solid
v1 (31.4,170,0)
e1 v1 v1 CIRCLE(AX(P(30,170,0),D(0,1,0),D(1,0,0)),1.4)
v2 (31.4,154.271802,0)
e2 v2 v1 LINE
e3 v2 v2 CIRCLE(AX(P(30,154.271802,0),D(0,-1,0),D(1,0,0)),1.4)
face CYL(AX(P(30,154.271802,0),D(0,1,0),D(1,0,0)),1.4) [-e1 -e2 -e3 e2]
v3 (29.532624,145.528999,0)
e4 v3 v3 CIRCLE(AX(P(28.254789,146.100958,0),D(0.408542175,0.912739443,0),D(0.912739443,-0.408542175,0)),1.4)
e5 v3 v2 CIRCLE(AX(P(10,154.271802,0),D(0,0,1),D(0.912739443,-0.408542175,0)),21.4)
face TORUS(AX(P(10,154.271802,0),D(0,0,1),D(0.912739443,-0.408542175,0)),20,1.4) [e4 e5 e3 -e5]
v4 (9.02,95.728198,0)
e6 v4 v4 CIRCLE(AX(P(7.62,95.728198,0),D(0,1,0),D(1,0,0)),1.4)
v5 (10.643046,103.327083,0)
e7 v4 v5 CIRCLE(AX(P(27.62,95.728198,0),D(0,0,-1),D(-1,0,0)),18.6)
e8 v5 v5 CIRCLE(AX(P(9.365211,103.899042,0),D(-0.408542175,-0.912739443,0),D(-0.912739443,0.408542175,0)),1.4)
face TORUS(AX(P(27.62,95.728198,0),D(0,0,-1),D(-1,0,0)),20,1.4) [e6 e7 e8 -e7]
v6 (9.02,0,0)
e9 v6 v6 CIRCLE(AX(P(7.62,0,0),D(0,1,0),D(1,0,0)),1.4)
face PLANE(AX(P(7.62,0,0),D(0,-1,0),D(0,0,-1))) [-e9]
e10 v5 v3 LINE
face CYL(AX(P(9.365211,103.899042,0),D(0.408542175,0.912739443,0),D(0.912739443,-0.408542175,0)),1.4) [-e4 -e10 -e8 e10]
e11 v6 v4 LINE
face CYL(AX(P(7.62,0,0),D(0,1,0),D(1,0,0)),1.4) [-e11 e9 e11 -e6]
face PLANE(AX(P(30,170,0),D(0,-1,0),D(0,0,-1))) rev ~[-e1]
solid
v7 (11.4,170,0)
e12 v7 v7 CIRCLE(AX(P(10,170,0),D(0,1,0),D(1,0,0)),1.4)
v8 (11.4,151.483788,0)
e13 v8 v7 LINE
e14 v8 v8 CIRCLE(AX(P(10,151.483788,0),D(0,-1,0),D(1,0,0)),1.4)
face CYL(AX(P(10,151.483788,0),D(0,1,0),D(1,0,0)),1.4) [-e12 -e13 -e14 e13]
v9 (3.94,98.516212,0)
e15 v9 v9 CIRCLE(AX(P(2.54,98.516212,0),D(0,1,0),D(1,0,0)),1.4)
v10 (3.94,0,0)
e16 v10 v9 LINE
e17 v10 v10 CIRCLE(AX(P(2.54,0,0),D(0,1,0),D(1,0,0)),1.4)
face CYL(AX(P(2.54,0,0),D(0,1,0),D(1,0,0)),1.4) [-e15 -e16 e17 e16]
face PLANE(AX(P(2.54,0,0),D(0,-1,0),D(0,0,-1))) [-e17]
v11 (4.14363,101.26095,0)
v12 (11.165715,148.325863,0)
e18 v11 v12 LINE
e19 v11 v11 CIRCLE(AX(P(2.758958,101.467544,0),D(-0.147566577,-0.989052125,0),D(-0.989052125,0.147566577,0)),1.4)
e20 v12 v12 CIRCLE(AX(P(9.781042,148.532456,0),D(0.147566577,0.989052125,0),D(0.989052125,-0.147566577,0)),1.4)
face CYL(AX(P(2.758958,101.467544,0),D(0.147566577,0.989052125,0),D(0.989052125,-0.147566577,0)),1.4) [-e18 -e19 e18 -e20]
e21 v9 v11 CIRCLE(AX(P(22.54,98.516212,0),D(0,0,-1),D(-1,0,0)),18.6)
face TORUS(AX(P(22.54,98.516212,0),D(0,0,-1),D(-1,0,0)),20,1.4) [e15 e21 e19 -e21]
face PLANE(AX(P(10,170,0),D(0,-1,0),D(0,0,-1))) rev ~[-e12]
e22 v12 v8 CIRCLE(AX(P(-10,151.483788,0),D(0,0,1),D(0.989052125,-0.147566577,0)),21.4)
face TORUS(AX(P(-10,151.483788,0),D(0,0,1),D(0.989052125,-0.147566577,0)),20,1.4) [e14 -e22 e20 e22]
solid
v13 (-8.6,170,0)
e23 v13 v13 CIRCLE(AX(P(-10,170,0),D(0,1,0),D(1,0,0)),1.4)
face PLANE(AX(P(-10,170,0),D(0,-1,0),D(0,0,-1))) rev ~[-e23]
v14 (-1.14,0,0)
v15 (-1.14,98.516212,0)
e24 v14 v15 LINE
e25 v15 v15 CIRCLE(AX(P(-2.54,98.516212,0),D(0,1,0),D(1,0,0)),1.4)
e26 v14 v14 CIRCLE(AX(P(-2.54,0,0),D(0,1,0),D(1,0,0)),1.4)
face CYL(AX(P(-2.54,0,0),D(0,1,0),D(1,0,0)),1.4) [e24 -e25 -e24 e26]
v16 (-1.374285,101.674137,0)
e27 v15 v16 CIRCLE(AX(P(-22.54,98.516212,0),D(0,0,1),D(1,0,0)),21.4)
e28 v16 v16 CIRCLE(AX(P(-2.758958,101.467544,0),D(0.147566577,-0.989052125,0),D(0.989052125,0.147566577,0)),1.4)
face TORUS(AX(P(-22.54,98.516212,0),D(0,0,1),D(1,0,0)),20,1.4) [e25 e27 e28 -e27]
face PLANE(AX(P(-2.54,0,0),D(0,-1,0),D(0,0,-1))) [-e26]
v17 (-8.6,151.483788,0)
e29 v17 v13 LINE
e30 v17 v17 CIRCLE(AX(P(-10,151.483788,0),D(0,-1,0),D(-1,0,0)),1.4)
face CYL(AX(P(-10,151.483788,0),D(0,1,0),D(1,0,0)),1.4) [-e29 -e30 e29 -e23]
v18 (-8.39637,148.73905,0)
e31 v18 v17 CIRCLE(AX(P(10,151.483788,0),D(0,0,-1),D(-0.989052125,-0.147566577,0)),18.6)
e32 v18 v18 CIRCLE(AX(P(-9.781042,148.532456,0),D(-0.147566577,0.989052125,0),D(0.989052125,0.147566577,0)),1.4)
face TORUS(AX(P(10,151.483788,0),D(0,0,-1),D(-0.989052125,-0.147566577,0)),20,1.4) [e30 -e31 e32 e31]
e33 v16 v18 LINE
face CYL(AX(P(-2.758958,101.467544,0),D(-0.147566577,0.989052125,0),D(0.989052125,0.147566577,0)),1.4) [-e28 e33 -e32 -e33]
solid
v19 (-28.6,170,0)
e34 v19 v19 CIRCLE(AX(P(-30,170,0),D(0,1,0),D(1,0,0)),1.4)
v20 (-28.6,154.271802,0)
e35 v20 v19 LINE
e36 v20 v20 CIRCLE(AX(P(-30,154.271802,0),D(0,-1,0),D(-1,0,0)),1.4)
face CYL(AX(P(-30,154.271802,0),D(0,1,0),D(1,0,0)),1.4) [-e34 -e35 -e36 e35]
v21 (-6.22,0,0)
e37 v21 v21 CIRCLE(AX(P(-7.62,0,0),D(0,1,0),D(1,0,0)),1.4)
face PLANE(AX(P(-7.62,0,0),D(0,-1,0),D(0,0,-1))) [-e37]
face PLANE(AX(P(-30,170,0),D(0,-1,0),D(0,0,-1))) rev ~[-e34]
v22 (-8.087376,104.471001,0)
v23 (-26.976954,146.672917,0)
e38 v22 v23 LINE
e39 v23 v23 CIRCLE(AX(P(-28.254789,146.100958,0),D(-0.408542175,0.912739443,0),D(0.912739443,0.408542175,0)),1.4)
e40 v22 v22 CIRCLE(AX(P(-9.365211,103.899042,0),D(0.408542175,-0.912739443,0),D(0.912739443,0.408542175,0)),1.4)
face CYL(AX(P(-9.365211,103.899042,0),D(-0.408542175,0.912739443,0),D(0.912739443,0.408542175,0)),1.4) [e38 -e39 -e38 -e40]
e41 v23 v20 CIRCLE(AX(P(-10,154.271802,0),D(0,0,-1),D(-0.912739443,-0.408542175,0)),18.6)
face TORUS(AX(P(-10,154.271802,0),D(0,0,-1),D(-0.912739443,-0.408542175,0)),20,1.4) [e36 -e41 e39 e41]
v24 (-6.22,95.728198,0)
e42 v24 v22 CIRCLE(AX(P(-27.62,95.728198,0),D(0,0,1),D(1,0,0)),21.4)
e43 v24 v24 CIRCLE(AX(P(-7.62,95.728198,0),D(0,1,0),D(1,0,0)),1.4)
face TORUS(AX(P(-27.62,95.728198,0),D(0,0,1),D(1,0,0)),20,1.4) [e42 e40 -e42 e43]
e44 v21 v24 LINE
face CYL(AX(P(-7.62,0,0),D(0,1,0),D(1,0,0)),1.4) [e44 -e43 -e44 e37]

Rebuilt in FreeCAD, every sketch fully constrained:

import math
import FreeCAD as App
import Part
import Sketcher

doc = App.newDocument("Part")
body = doc.addObject("PartDesign::Body", "Body")

# Sketch on XZ plane
sketch1 = body.newObject("Sketcher::SketchObject", "Sketch")
sketch1.AttachmentSupport = (doc.getObject("XZ_Plane"), [""])
sketch1.MapMode = "FlatFace"
sketch1.addGeometry(Part.Circle(App.Vector(-7.6, 0, 0), App.Vector(0, 0, 1), 1.4), False)
sketch1.addConstraint(Sketcher.Constraint("PointOnObject", 0, 3, -1))
sketch1.addConstraint(Sketcher.Constraint("Diameter", 0, 2.8))
sketch1.addConstraint(Sketcher.Constraint("DistanceX", 0, 3, -1, 1, 7.62))

# Sketch on XY plane
sketch2 = body.newObject("Sketcher::SketchObject", "Sketch001")
sketch2.AttachmentSupport = (doc.getObject("XY_Plane"), [""])
sketch2.MapMode = "FlatFace"
sketch2.addGeometry(Part.LineSegment(App.Vector(-8, 0, 0), App.Vector(-8, 96, 0)), False)
sketch2.addGeometry(Part.ArcOfCircle(Part.Circle(App.Vector(-28, 96, 0), App.Vector(0, 0, 1), 20), math.radians(0), math.radians(24)), False)
sketch2.addGeometry(Part.LineSegment(App.Vector(-9, 104, 0), App.Vector(-28, 146, 0)), False)
sketch2.addGeometry(Part.ArcOfCircle(Part.Circle(App.Vector(-10, 154, 0), App.Vector(0, 0, 1), 20), math.radians(180), math.radians(204)), False)
sketch2.addGeometry(Part.LineSegment(App.Vector(-30, 154, 0), App.Vector(-30, 170, 0)), False)
sketch2.addConstraint(Sketcher.Constraint("Tangent", 0, 2, 1, 1))
sketch2.addConstraint(Sketcher.Constraint("Tangent", 1, 2, 2, 1))
sketch2.addConstraint(Sketcher.Constraint("Tangent", 2, 2, 3, 2))
sketch2.addConstraint(Sketcher.Constraint("Tangent", 3, 1, 4, 1))
sketch2.addConstraint(Sketcher.Constraint("Vertical", 0))
sketch2.addConstraint(Sketcher.Constraint("Vertical", 4))
sketch2.addConstraint(Sketcher.Constraint("Equal", 1, 3))
sketch2.addConstraint(Sketcher.Constraint("PointOnObject", 0, 1, -1))
sketch2.addConstraint(Sketcher.Constraint("Radius", 1, 20.0))
sketch2.addConstraint(Sketcher.Constraint("DistanceX", 3, 3, -1, 1, 10.0))
sketch2.addConstraint(Sketcher.Constraint("DistanceY", -1, 1, 4, 2, 170.0))
sketch2.addConstraint(Sketcher.Constraint("DistanceX", 1, 3, -1, 1, 27.62))
sketch2.addConstraint(Sketcher.Constraint("DistanceY", 0, 1, 0, 2, 95.728198))
sketch2.addConstraint(Sketcher.Constraint("DistanceY", 4, 1, 4, 2, 15.728198))
doc.recompute()

additivepipe = body.newObject("PartDesign::AdditivePipe", "AdditivePipe")
additivepipe.Profile = sketch1
additivepipe.Spine = (sketch2, ["Edge1", "Edge2", "Edge3", "Edge4", "Edge5"])
body2 = doc.addObject("PartDesign::Body", "Body001")

# Sketch on XZ plane
sketch3 = body2.newObject("Sketcher::SketchObject", "Sketch002")
sketch3.AttachmentSupport = (doc.getObject("XZ_Plane001"), [""])
sketch3.MapMode = "FlatFace"
sketch3.addGeometry(Part.Circle(App.Vector(-2.5, 0, 0), App.Vector(0, 0, 1), 1.4), False)
sketch3.addConstraint(Sketcher.Constraint("PointOnObject", 0, 3, -1))
sketch3.addConstraint(Sketcher.Constraint("Diameter", 0, 2.8))
sketch3.addConstraint(Sketcher.Constraint("DistanceX", 0, 3, -1, 1, 2.54))

# Sketch on XY plane
sketch4 = body2.newObject("Sketcher::SketchObject", "Sketch003")
sketch4.AttachmentSupport = (doc.getObject("XY_Plane001"), [""])
sketch4.MapMode = "FlatFace"
sketch4.addGeometry(Part.LineSegment(App.Vector(-2.5, 0, 0), App.Vector(-2.5, 98.5, 0)), False)
sketch4.addGeometry(Part.ArcOfCircle(Part.Circle(App.Vector(-22.5, 98.5, 0), App.Vector(0, 0, 1), 20), math.radians(0), math.radians(8.49)), False)
sketch4.addGeometry(Part.LineSegment(App.Vector(-2.8, 101.5, 0), App.Vector(-9.8, 148.5, 0)), False)
sketch4.addGeometry(Part.ArcOfCircle(Part.Circle(App.Vector(10, 151.5, 0), App.Vector(0, 0, 1), 20), math.radians(-180), math.radians(-171.51)), False)
sketch4.addGeometry(Part.LineSegment(App.Vector(-10, 151.5, 0), App.Vector(-10, 170, 0)), False)
sketch4.addConstraint(Sketcher.Constraint("Tangent", 0, 2, 1, 1))
sketch4.addConstraint(Sketcher.Constraint("Tangent", 1, 2, 2, 1))
sketch4.addConstraint(Sketcher.Constraint("Tangent", 2, 2, 3, 2))
sketch4.addConstraint(Sketcher.Constraint("Tangent", 3, 1, 4, 1))
sketch4.addConstraint(Sketcher.Constraint("Vertical", 0))
sketch4.addConstraint(Sketcher.Constraint("Vertical", 4))
sketch4.addConstraint(Sketcher.Constraint("Equal", 1, 3))
sketch4.addConstraint(Sketcher.Constraint("PointOnObject", 0, 1, -1))
sketch4.addConstraint(Sketcher.Constraint("Radius", 1, 20.0))
sketch4.addConstraint(Sketcher.Constraint("DistanceX", -1, 1, 3, 3, 10.0))
sketch4.addConstraint(Sketcher.Constraint("DistanceY", -1, 1, 4, 2, 170.0))
sketch4.addConstraint(Sketcher.Constraint("DistanceX", 1, 3, -1, 1, 22.54))
sketch4.addConstraint(Sketcher.Constraint("DistanceY", 0, 1, 0, 2, 98.516212))
sketch4.addConstraint(Sketcher.Constraint("DistanceY", 4, 1, 4, 2, 18.516212))
doc.recompute()

additivepipe2 = body2.newObject("PartDesign::AdditivePipe", "AdditivePipe001")
additivepipe2.Profile = sketch3
additivepipe2.Spine = (sketch4, ["Edge1", "Edge2", "Edge3", "Edge4", "Edge5"])
body3 = doc.addObject("PartDesign::Body", "Body002")

# Sketch on XZ plane
sketch5 = body3.newObject("Sketcher::SketchObject", "Sketch004")
sketch5.AttachmentSupport = (doc.getObject("XZ_Plane002"), [""])
sketch5.MapMode = "FlatFace"
sketch5.addGeometry(Part.Circle(App.Vector(2.5, 0, 0), App.Vector(0, 0, 1), 1.4), False)
sketch5.addConstraint(Sketcher.Constraint("PointOnObject", 0, 3, -1))
sketch5.addConstraint(Sketcher.Constraint("Diameter", 0, 2.8))
sketch5.addConstraint(Sketcher.Constraint("DistanceX", -1, 1, 0, 3, 2.54))

# Sketch on XY plane
sketch6 = body3.newObject("Sketcher::SketchObject", "Sketch005")
sketch6.AttachmentSupport = (doc.getObject("XY_Plane002"), [""])
sketch6.MapMode = "FlatFace"
sketch6.addGeometry(Part.LineSegment(App.Vector(2.5, 0, 0), App.Vector(2.5, 98.5, 0)), False)
sketch6.addGeometry(Part.ArcOfCircle(Part.Circle(App.Vector(22.5, 98.5, 0), App.Vector(0, 0, 1), 20), math.radians(171.51), math.radians(180)), False)
sketch6.addGeometry(Part.LineSegment(App.Vector(2.8, 101.5, 0), App.Vector(9.8, 148.5, 0)), False)
sketch6.addGeometry(Part.ArcOfCircle(Part.Circle(App.Vector(-10, 151.5, 0), App.Vector(0, 0, 1), 20), math.radians(-8.49), math.radians(0)), False)
sketch6.addGeometry(Part.LineSegment(App.Vector(10, 151.5, 0), App.Vector(10, 170, 0)), False)
sketch6.addConstraint(Sketcher.Constraint("Tangent", 0, 2, 1, 2))
sketch6.addConstraint(Sketcher.Constraint("Tangent", 1, 1, 2, 1))
sketch6.addConstraint(Sketcher.Constraint("Tangent", 2, 2, 3, 1))
sketch6.addConstraint(Sketcher.Constraint("Tangent", 3, 2, 4, 1))
sketch6.addConstraint(Sketcher.Constraint("Vertical", 0))
sketch6.addConstraint(Sketcher.Constraint("Vertical", 4))
sketch6.addConstraint(Sketcher.Constraint("Equal", 1, 3))
sketch6.addConstraint(Sketcher.Constraint("PointOnObject", 0, 1, -1))
sketch6.addConstraint(Sketcher.Constraint("Radius", 1, 20.0))
sketch6.addConstraint(Sketcher.Constraint("DistanceX", 3, 3, -1, 1, 10.0))
sketch6.addConstraint(Sketcher.Constraint("DistanceY", -1, 1, 4, 2, 170.0))
sketch6.addConstraint(Sketcher.Constraint("DistanceX", -1, 1, 1, 3, 22.54))
sketch6.addConstraint(Sketcher.Constraint("DistanceY", 0, 1, 0, 2, 98.516212))
sketch6.addConstraint(Sketcher.Constraint("DistanceY", 4, 1, 4, 2, 18.516212))
doc.recompute()

additivepipe3 = body3.newObject("PartDesign::AdditivePipe", "AdditivePipe002")
additivepipe3.Profile = sketch5
additivepipe3.Spine = (sketch6, ["Edge1", "Edge2", "Edge3", "Edge4", "Edge5"])
body4 = doc.addObject("PartDesign::Body", "Body003")

# Sketch on XZ plane
sketch7 = body4.newObject("Sketcher::SketchObject", "Sketch006")
sketch7.AttachmentSupport = (doc.getObject("XZ_Plane003"), [""])
sketch7.MapMode = "FlatFace"
sketch7.addGeometry(Part.Circle(App.Vector(7.6, 0, 0), App.Vector(0, 0, 1), 1.4), False)
sketch7.addConstraint(Sketcher.Constraint("PointOnObject", 0, 3, -1))
sketch7.addConstraint(Sketcher.Constraint("Diameter", 0, 2.8))
sketch7.addConstraint(Sketcher.Constraint("DistanceX", -1, 1, 0, 3, 7.62))

# Sketch on XY plane
sketch8 = body4.newObject("Sketcher::SketchObject", "Sketch007")
sketch8.AttachmentSupport = (doc.getObject("XY_Plane003"), [""])
sketch8.MapMode = "FlatFace"
sketch8.addGeometry(Part.LineSegment(App.Vector(8, 0, 0), App.Vector(8, 96, 0)), False)
sketch8.addGeometry(Part.ArcOfCircle(Part.Circle(App.Vector(28, 96, 0), App.Vector(0, 0, 1), 20), math.radians(156), math.radians(180)), False)
sketch8.addGeometry(Part.LineSegment(App.Vector(9, 104, 0), App.Vector(28, 146, 0)), False)
sketch8.addGeometry(Part.ArcOfCircle(Part.Circle(App.Vector(10, 154, 0), App.Vector(0, 0, 1), 20), math.radians(-24), math.radians(0)), False)
sketch8.addGeometry(Part.LineSegment(App.Vector(30, 154, 0), App.Vector(30, 170, 0)), False)
sketch8.addConstraint(Sketcher.Constraint("Tangent", 0, 2, 1, 2))
sketch8.addConstraint(Sketcher.Constraint("Tangent", 1, 1, 2, 1))
sketch8.addConstraint(Sketcher.Constraint("Tangent", 2, 2, 3, 1))
sketch8.addConstraint(Sketcher.Constraint("Tangent", 3, 2, 4, 1))
sketch8.addConstraint(Sketcher.Constraint("Vertical", 0))
sketch8.addConstraint(Sketcher.Constraint("Vertical", 4))
sketch8.addConstraint(Sketcher.Constraint("Equal", 1, 3))
sketch8.addConstraint(Sketcher.Constraint("PointOnObject", 0, 1, -1))
sketch8.addConstraint(Sketcher.Constraint("Radius", 1, 20.0))
sketch8.addConstraint(Sketcher.Constraint("DistanceX", -1, 1, 3, 3, 10.0))
sketch8.addConstraint(Sketcher.Constraint("DistanceY", -1, 1, 4, 2, 170.0))
sketch8.addConstraint(Sketcher.Constraint("DistanceX", -1, 1, 1, 3, 27.62))
sketch8.addConstraint(Sketcher.Constraint("DistanceY", 0, 1, 0, 2, 95.728198))
sketch8.addConstraint(Sketcher.Constraint("DistanceY", 4, 1, 4, 2, 15.728198))
doc.recompute()

additivepipe4 = body4.newObject("PartDesign::AdditivePipe", "AdditivePipe003")
additivepipe4.Profile = sketch7
additivepipe4.Spine = (sketch8, ["Edge1", "Edge2", "Edge3", "Edge4", "Edge5"])

doc.recompute()
